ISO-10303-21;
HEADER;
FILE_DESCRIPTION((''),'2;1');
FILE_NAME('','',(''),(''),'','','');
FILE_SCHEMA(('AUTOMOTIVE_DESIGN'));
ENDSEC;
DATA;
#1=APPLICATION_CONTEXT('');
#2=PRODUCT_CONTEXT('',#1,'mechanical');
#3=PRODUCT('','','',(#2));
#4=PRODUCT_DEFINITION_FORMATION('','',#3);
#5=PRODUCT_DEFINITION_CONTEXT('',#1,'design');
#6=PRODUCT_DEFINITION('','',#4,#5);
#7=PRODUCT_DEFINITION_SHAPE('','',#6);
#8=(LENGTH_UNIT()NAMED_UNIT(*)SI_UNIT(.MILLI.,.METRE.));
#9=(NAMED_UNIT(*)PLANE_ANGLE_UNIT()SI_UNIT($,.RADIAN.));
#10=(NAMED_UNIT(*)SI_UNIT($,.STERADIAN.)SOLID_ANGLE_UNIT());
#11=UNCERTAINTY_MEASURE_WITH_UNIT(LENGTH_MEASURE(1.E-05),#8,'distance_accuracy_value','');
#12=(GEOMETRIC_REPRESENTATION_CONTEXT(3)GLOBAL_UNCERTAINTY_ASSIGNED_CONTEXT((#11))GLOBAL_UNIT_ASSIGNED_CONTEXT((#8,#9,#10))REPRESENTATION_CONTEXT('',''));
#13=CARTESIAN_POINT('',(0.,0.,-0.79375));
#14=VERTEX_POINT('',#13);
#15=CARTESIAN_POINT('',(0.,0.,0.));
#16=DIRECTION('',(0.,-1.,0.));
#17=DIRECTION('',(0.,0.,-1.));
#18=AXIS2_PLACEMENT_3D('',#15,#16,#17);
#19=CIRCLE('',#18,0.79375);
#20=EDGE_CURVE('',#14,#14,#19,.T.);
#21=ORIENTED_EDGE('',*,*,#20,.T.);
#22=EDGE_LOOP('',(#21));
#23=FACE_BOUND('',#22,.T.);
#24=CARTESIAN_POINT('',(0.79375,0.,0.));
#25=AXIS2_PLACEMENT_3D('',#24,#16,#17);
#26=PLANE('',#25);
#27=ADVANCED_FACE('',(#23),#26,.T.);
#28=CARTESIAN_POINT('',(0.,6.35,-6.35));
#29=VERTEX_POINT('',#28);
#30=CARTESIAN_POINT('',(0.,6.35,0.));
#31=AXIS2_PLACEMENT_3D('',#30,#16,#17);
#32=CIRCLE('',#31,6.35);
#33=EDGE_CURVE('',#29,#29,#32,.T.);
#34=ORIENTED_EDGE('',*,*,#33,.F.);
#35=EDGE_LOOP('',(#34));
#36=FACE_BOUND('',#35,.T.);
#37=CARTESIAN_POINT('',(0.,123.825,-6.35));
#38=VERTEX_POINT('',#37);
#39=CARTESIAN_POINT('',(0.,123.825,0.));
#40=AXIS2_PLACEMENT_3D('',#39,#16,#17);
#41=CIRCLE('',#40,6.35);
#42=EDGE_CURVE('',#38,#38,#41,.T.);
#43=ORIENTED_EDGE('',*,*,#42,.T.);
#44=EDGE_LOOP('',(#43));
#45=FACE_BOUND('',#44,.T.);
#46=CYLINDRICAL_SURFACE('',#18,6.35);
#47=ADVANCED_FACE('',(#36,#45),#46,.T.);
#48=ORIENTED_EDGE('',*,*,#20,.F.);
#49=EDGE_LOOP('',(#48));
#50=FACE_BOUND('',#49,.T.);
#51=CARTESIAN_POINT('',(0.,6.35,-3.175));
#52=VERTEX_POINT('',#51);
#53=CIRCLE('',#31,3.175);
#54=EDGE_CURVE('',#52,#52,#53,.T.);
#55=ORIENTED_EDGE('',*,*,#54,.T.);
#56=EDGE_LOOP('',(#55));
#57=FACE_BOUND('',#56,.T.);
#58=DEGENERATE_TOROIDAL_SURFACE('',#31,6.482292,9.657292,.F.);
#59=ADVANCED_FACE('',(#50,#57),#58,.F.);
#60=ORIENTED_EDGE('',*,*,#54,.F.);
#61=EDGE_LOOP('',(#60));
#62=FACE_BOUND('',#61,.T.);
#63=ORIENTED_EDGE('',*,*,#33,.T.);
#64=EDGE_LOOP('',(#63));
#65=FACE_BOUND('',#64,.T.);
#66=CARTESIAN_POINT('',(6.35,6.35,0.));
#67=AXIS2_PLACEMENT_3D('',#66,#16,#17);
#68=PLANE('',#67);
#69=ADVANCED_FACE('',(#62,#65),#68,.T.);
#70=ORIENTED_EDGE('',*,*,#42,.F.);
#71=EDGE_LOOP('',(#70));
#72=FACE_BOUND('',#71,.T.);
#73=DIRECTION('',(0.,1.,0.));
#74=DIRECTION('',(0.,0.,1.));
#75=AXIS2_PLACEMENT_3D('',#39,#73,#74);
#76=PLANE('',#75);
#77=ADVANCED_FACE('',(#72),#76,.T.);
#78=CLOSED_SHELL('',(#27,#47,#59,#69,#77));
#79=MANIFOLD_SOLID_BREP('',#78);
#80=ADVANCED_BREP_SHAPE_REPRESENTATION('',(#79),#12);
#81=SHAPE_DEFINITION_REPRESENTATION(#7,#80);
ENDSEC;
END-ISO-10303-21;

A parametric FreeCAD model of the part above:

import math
import FreeCAD as App
import Part
import Sketcher

V = App.Vector
Q = App.Units.Quantity

doc = App.newDocument("Part")
body = doc.addObject("PartDesign::Body", "Body")

# Sketch on XY plane
sketch1 = doc.addObject("Sketcher::SketchObject", "Sketch")
body.addObject(sketch1)
sketch1.AttachmentSupport = (doc.XY_Plane, [""])
sketch1.MapMode = "FlatFace"
sketch1.addGeometry([
    Part.LineSegment(V(6.3, 123.8, 0), V(0, 123.8, 0)),  # 0
    Part.LineSegment(V(0, 123.8, 0), V(0, 0, 0)),  # 1
    Part.LineSegment(V(0, 0, 0), V(0.8, 0, 0)),  # 2
    Part.ArcOfCircle(Part.Circle(V(-6.5, 6.4, 0), V(0, 0, 1), 9.7), math.radians(-41), math.radians(0)),  # 3
    Part.LineSegment(V(3.2, 6.3, 0), V(6.3, 6.3, 0)),  # 4
    Part.LineSegment(V(6.3, 6.3, 0), V(6.3, 123.8, 0)),  # 5
], False)
sketch1.addConstraint([
    Sketcher.Constraint("Coincident", 0, 2, 1, 1),
    Sketcher.Constraint("Coincident", 1, 2, 2, 1),
    Sketcher.Constraint("Coincident", 2, 2, 3, 1),
    Sketcher.Constraint("Coincident", 3, 2, 4, 1),
    Sketcher.Constraint("Coincident", 4, 2, 5, 1),
    Sketcher.Constraint("Coincident", 5, 2, 0, 1),
    Sketcher.Constraint("Horizontal", 0),
    Sketcher.Constraint("Vertical", 1),
    Sketcher.Constraint("Horizontal", 2),
    Sketcher.Constraint("Horizontal", 4),
    Sketcher.Constraint("Vertical", 5),
    Sketcher.Constraint("Coincident", 1, 2, -1, 1),
    Sketcher.Constraint("DistanceX", 0, 2, 0, 1, Q("0.25 in")),
    Sketcher.Constraint("DistanceX", 2, 1, 2, 2, Q("0.03125 in")),
    Sketcher.Constraint("DistanceX", 4, 1, 4, 2, Q("0.125 in")),
    Sketcher.Constraint("DistanceY", 1, 2, 1, 1, Q("4.875 in")),
    Sketcher.Constraint("DistanceY", 5, 1, 5, 2, Q("4.625 in")),
    Sketcher.Constraint("DistanceY", -1, 1, 3, 3, Q("0.25 in")),
])
revolution = doc.addObject("PartDesign::Revolution", "Revolution")
body.addObject(revolution)
revolution.Profile = sketch1
revolution.ReferenceAxis = (sketch1, ["V_Axis"])
revolution.Angle = 360

doc.recompute()
